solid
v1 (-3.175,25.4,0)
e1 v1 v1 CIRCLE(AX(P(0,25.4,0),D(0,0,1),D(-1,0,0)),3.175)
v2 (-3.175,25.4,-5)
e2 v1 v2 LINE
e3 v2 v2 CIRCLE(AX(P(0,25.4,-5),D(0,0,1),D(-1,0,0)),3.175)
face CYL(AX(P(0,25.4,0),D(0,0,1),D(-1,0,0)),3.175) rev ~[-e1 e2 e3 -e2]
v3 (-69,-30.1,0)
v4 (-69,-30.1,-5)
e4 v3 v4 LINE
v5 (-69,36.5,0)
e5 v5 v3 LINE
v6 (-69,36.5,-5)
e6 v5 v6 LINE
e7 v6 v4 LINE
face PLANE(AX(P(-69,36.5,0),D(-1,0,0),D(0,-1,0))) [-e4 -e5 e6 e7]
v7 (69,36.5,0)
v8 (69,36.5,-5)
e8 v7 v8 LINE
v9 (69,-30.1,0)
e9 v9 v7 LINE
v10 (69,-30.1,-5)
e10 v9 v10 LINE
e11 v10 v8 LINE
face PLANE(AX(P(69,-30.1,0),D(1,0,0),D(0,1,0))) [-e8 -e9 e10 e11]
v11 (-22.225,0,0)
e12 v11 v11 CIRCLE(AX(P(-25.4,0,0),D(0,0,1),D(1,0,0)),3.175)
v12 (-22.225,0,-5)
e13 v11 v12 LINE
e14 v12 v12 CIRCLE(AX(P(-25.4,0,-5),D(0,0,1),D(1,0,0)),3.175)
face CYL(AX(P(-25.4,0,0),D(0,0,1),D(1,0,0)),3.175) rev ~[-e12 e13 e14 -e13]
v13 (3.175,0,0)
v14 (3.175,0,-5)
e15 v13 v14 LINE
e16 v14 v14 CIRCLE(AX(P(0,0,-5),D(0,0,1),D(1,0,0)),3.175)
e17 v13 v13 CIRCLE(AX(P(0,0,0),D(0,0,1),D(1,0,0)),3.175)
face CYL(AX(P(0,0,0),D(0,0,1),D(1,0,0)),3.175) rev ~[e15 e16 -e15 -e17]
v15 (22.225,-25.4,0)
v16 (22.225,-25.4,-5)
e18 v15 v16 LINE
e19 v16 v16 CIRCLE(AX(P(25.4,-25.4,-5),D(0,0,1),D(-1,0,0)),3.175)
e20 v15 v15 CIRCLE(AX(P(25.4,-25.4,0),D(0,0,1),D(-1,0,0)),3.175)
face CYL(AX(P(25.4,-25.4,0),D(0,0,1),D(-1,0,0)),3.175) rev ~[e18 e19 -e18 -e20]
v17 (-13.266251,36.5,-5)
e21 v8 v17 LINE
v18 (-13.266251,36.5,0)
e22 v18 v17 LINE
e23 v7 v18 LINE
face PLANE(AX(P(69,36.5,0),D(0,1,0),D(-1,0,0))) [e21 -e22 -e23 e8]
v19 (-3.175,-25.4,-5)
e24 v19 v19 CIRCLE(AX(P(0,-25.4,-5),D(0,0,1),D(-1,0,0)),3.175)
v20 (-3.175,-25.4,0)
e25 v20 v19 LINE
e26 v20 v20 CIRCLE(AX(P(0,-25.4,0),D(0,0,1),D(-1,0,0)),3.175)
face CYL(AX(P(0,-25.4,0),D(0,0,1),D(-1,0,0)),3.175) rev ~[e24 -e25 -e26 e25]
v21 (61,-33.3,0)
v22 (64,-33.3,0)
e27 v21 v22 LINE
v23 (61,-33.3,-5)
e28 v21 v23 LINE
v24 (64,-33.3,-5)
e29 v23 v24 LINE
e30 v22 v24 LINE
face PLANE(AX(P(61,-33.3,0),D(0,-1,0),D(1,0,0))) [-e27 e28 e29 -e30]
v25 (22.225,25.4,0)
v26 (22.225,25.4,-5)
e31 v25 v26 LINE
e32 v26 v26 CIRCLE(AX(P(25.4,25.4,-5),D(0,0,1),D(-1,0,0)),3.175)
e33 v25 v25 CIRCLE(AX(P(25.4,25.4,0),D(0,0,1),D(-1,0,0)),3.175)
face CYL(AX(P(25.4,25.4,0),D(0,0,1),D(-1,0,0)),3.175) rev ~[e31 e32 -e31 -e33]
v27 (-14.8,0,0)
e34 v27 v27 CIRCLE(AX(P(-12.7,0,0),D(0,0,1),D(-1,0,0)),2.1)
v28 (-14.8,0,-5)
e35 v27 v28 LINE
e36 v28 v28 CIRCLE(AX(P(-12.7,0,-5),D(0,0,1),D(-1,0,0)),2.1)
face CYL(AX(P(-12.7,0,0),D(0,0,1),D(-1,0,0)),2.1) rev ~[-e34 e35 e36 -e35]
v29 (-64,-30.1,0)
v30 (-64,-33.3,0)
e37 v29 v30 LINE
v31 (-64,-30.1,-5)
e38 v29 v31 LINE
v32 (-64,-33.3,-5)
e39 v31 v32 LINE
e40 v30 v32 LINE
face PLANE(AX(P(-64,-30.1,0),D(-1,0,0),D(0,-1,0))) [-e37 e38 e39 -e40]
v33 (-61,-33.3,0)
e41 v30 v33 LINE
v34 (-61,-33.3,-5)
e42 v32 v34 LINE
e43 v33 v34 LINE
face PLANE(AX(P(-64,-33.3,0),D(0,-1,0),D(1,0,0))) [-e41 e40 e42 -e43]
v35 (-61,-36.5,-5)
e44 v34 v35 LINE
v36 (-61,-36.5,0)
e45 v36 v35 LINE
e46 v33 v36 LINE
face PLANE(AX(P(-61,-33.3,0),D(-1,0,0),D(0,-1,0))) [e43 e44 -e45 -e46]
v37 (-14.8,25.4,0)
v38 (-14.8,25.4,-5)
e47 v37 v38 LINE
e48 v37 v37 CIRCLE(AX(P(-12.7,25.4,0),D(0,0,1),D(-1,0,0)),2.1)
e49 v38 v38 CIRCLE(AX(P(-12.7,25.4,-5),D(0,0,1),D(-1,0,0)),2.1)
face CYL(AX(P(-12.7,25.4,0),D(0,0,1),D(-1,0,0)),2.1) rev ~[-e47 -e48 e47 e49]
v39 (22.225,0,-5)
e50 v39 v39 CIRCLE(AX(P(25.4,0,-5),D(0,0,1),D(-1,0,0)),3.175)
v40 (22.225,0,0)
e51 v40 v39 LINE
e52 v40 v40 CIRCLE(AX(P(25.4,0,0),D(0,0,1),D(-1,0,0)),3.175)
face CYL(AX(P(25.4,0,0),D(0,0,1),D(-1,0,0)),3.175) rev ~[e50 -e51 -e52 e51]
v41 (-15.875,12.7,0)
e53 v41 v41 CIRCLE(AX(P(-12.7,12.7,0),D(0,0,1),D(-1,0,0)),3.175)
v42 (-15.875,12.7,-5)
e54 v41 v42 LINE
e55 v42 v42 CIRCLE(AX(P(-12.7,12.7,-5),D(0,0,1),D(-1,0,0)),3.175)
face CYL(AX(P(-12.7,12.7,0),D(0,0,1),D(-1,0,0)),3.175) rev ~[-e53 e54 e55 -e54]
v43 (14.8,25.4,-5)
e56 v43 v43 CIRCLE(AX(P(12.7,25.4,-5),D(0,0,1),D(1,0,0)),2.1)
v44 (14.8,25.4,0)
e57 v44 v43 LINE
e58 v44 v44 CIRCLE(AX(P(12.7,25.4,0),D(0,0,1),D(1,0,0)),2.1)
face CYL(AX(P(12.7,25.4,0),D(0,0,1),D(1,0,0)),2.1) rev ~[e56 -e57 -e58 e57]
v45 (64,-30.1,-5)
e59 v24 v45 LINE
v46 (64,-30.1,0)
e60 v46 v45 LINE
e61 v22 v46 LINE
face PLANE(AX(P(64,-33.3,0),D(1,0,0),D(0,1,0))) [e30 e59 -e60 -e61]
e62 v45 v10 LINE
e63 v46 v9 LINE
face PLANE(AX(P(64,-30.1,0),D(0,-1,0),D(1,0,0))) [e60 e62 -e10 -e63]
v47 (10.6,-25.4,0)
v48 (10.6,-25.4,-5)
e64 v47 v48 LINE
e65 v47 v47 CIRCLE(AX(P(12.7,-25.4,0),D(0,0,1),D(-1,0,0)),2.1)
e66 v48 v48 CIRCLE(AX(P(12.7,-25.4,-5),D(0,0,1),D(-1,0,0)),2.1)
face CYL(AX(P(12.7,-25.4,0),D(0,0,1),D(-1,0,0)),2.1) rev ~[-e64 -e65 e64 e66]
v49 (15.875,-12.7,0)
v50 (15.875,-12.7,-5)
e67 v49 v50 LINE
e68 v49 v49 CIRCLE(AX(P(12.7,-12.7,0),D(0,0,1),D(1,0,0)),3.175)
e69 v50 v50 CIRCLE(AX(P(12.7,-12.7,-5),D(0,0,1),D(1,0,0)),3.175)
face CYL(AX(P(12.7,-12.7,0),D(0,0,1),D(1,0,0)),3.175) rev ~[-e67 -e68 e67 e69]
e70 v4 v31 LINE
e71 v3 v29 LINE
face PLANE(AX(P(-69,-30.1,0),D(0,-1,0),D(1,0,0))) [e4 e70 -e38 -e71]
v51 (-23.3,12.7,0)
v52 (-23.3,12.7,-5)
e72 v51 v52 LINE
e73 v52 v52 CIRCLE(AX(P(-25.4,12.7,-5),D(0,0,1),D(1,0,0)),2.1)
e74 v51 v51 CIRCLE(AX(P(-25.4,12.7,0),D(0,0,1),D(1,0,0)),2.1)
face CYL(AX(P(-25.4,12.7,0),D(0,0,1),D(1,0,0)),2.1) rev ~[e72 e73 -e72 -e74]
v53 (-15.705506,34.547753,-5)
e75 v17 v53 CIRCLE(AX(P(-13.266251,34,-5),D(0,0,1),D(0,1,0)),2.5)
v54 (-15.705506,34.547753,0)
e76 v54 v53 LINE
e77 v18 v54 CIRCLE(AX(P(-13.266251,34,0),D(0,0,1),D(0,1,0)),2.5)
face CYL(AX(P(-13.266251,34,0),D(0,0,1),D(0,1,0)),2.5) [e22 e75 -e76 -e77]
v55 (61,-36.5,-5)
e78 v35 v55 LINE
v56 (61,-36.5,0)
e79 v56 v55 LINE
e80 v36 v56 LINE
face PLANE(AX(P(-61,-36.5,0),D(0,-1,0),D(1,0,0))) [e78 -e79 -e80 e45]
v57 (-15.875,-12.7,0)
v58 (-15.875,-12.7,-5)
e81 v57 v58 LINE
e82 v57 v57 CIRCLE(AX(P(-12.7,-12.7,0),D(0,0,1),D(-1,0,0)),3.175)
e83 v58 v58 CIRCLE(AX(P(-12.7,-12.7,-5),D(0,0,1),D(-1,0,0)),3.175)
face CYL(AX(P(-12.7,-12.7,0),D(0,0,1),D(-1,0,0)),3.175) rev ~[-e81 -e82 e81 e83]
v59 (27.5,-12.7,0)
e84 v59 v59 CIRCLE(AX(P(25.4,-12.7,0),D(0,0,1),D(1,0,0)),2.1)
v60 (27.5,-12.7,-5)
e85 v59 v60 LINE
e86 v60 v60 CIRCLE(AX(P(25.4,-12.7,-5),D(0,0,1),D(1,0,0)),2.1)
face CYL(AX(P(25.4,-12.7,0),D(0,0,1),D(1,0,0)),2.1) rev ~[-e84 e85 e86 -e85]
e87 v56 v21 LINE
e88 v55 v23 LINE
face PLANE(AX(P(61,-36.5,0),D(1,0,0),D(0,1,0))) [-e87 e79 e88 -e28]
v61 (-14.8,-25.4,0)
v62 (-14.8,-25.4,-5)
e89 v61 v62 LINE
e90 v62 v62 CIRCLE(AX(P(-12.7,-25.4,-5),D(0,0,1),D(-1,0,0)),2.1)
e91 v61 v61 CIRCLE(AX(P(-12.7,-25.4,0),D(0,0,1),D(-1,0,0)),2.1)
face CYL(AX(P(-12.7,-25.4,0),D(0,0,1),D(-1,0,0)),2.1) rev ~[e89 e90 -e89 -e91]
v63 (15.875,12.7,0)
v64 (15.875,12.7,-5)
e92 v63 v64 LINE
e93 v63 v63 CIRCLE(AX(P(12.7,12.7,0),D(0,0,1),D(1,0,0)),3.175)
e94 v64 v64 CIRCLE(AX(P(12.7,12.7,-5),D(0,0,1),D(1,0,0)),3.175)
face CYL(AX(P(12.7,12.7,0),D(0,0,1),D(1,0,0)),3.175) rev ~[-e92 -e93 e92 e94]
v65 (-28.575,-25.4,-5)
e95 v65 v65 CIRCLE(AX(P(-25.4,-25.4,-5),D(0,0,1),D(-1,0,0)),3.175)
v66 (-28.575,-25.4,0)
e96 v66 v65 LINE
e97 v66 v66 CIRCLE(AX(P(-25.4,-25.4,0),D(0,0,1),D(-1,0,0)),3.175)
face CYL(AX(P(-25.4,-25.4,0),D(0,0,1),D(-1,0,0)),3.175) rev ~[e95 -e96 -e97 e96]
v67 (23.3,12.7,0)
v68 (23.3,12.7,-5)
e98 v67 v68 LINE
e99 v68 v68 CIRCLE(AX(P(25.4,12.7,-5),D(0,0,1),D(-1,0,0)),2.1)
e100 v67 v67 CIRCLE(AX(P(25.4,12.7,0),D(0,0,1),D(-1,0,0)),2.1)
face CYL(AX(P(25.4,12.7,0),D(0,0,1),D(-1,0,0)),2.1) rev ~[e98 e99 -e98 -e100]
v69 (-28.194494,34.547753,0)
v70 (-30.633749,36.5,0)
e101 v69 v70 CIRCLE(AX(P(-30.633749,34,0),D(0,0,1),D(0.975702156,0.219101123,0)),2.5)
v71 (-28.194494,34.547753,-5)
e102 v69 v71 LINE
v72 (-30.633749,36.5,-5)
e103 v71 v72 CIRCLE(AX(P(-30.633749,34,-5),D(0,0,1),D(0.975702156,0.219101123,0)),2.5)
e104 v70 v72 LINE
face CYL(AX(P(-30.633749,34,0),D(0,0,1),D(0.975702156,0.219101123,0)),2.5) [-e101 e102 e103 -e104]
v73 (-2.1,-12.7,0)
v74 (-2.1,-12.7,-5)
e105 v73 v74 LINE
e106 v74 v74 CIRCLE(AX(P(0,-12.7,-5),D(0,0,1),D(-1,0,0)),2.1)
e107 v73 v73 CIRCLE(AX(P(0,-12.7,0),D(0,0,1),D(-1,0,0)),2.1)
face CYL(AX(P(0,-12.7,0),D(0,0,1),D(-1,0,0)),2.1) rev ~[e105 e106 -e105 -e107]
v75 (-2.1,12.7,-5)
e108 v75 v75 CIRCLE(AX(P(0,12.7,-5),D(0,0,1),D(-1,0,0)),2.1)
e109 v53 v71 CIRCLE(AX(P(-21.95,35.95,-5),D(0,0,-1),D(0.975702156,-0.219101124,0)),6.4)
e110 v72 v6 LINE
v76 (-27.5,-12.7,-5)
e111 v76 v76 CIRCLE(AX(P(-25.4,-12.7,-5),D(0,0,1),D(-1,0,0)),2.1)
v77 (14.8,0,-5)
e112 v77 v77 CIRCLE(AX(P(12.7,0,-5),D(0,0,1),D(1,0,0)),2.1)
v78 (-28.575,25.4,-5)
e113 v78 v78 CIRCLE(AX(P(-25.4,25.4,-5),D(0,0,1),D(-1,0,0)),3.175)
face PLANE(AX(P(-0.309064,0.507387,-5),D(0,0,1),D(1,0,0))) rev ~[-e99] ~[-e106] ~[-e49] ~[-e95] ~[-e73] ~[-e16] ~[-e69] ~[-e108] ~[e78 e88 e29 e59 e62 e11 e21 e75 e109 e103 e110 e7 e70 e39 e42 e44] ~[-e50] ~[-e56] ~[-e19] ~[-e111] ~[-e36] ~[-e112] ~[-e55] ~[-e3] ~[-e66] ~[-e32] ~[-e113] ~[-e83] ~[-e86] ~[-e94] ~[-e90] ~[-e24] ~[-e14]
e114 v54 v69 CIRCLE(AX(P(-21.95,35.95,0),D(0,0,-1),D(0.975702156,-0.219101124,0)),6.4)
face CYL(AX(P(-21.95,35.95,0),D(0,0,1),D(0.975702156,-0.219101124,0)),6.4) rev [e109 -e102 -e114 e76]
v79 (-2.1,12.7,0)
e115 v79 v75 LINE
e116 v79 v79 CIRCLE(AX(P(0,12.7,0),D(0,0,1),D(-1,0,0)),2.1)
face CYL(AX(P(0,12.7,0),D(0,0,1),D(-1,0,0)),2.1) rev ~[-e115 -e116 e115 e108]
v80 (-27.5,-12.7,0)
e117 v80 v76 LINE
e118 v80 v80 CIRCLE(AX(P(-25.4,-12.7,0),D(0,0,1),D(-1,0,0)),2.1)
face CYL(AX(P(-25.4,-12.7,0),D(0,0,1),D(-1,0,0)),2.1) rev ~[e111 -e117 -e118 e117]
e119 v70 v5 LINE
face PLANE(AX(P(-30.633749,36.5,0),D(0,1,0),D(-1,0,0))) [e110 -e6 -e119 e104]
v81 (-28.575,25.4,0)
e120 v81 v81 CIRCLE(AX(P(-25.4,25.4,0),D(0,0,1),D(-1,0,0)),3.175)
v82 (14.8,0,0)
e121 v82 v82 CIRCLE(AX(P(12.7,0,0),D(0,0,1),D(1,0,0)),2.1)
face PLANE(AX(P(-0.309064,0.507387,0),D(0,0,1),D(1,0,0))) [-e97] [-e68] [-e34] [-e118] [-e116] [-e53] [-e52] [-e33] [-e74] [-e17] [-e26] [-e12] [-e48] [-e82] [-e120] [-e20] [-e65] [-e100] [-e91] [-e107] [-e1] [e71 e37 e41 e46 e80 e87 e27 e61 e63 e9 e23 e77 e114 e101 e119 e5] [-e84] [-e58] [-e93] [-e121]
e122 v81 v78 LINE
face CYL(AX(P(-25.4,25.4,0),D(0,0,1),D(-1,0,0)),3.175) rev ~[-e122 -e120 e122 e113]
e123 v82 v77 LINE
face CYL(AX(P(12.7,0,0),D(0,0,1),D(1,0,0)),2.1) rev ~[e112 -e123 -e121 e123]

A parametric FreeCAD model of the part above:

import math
import FreeCAD as App
import Part
import Sketcher
from FreeCAD import Vector
Q = App.Units.Quantity

doc = App.newDocument("Part")
body = doc.addObject("PartDesign::Body", "Body")

sketch1 = doc.addObject("Sketcher::SketchObject", "Sketch")
body.addObject(sketch1)
sketch1.AttachmentSupport = (doc.XY_Plane, [""])
sketch1.MapMode = "FlatFace"
sketch1.addGeometry([
    Part.LineSegment(Vector(-30.633749, 36.5, 0), Vector(-69, 36.5, 0)),
    Part.LineSegment(Vector(-69, 36.5, 0), Vector(-69, -30.1, 0)),
    Part.LineSegment(Vector(-69, -30.1, 0), Vector(-64, -30.1, 0)),
    Part.LineSegment(Vector(-64, -30.1, 0), Vector(-64, -33.3, 0)),
    Part.LineSegment(Vector(-64, -33.3, 0), Vector(-61, -33.3, 0)),
    Part.LineSegment(Vector(-61, -33.3, 0), Vector(-61, -36.5, 0)),
    Part.LineSegment(Vector(-61, -36.5, 0), Vector(61, -36.5, 0)),
    Part.LineSegment(Vector(61, -36.5, 0), Vector(61, -33.3, 0)),
    Part.LineSegment(Vector(61, -33.3, 0), Vector(64, -33.3, 0)),
    Part.LineSegment(Vector(64, -33.3, 0), Vector(64, -30.1, 0)),
    Part.LineSegment(Vector(64, -30.1, 0), Vector(69, -30.1, 0)),
    Part.LineSegment(Vector(69, -30.1, 0), Vector(69, 36.5, 0)),
    Part.LineSegment(Vector(69, 36.5, 0), Vector(-13.266251, 36.5, 0)),
    Part.ArcOfCircle(Part.Circle(Vector(-13.266251, 34, 0), Vector(0, 0, 1), 2.5), math.radians(90), math.radians(167.343757)),
    Part.ArcOfCircle(Part.Circle(Vector(-21.95, 35.95, 0), Vector(0, 0, 1), 6.4), math.radians(-167.343757), math.radians(-12.656243)),
    Part.ArcOfCircle(Part.Circle(Vector(-30.633749, 34, 0), Vector(0, 0, 1), 2.5), math.radians(12.656243), math.radians(90)),
    Part.Circle(Vector(-25.4, -25.4, 0), Vector(0, 0, 1), 3.175),
    Part.Circle(Vector(-12.7, -25.4, 0), Vector(0, 0, 1), 2.1),
    Part.Circle(Vector(-25.4, -12.7, 0), Vector(0, 0, 1), 2.1),
    Part.Circle(Vector(-12.7, -12.7, 0), Vector(0, 0, 1), 3.175),
    Part.Circle(Vector(0, -25.4, 0), Vector(0, 0, 1), 3.175),
    Part.Circle(Vector(12.7, -25.4, 0), Vector(0, 0, 1), 2.1),
    Part.Circle(Vector(25.4, -25.4, 0), Vector(0, 0, 1), 3.175),
    Part.Circle(Vector(0, -12.7, 0), Vector(0, 0, 1), 2.1),
    Part.Circle(Vector(12.7, -12.7, 0), Vector(0, 0, 1), 3.175),
    Part.Circle(Vector(12.7, 0, 0), Vector(0, 0, 1), 2.1),
    Part.Circle(Vector(25.4, -12.7, 0), Vector(0, 0, 1), 2.1),
    Part.Circle(Vector(25.4, 0, 0), Vector(0, 0, 1), 3.175),
    Part.Circle(Vector(-25.4, 0, 0), Vector(0, 0, 1), 3.175),
    Part.Circle(Vector(-25.4, 12.7, 0), Vector(0, 0, 1), 2.1),
    Part.Circle(Vector(-12.7, 0, 0), Vector(0, 0, 1), 2.1),
    Part.Circle(Vector(-12.7, 12.7, 0), Vector(0, 0, 1), 3.175),
    Part.Circle(Vector(-25.4, 25.4, 0), Vector(0, 0, 1), 3.175),
    Part.Circle(Vector(-12.7, 25.4, 0), Vector(0, 0, 1), 2.1),
    Part.Circle(Vector(0, 0, 0), Vector(0, 0, 1), 3.175),
    Part.Circle(Vector(0, 12.7, 0), Vector(0, 0, 1), 2.1),
    Part.Circle(Vector(12.7, 12.7, 0), Vector(0, 0, 1), 3.175),
    Part.Circle(Vector(25.4, 12.7, 0), Vector(0, 0, 1), 2.1),
    Part.Circle(Vector(0, 25.4, 0), Vector(0, 0, 1), 3.175),
    Part.Circle(Vector(12.7, 25.4, 0), Vector(0, 0, 1), 2.1),
    Part.Circle(Vector(25.4, 25.4, 0), Vector(0, 0, 1), 3.175),
], False)
sketch1.addConstraint([
    Sketcher.Constraint("Coincident", 0, 2, 1, 1),
    Sketcher.Constraint("Coincident", 1, 2, 2, 1),
    Sketcher.Constraint("Coincident", 2, 2, 3, 1),
    Sketcher.Constraint("Coincident", 3, 2, 4, 1),
    Sketcher.Constraint("Coincident", 4, 2, 5, 1),
    Sketcher.Constraint("Coincident", 5, 2, 6, 1),
    Sketcher.Constraint("Coincident", 6, 2, 7, 1),
    Sketcher.Constraint("Coincident", 7, 2, 8, 1),
    Sketcher.Constraint("Coincident", 8, 2, 9, 1),
    Sketcher.Constraint("Coincident", 9, 2, 10, 1),
    Sketcher.Constraint("Coincident", 10, 2, 11, 1),
    Sketcher.Constraint("Coincident", 11, 2, 12, 1),
    Sketcher.Constraint("Tangent", 12, 2, 13, 1),
    Sketcher.Constraint("Tangent", 13, 2, 14, 2),
    Sketcher.Constraint("Tangent", 14, 1, 15, 1),
    Sketcher.Constraint("Tangent", 15, 2, 0, 1),
    Sketcher.Constraint("Horizontal", 0),
    Sketcher.Constraint("Vertical", 1),
    Sketcher.Constraint("Horizontal", 2),
    Sketcher.Constraint("Vertical", 3),
    Sketcher.Constraint("Horizontal", 4),
    Sketcher.Constraint("Vertical", 5),
    Sketcher.Constraint("Horizontal", 6),
    Sketcher.Constraint("Vertical", 7),
    Sketcher.Constraint("Horizontal", 8),
    Sketcher.Constraint("Vertical", 9),
    Sketcher.Constraint("Horizontal", 10),
    Sketcher.Constraint("Vertical", 11),
    Sketcher.Constraint("Horizontal", 12),
    Sketcher.Constraint("Coincident", 34, 3, -1, 1),
    Sketcher.Constraint("Equal", 13, 15),
    Sketcher.Constraint("Equal", 17, 18),
    Sketcher.Constraint("Equal", 16, 19),
    Sketcher.Constraint("Equal", 19, 20),
    Sketcher.Constraint("Equal", 18, 21),
    Sketcher.Constraint("Equal", 20, 22),
    Sketcher.Constraint("Equal", 21, 23),
    Sketcher.Constraint("Equal", 22, 24),
    Sketcher.Constraint("Equal", 23, 25),
    Sketcher.Constraint("Equal", 25, 26),
    Sketcher.Constraint("Equal", 24, 27),
    Sketcher.Constraint("Equal", 27, 28),
    Sketcher.Constraint("Equal", 26, 29),
    Sketcher.Constraint("Equal", 29, 30),
    Sketcher.Constraint("Equal", 28, 31),
    Sketcher.Constraint("Equal", 31, 32),
    Sketcher.Constraint("Equal", 30, 33),
    Sketcher.Constraint("Equal", 32, 34),
    Sketcher.Constraint("Equal", 33, 35),
    Sketcher.Constraint("Equal", 34, 36),
    Sketcher.Constraint("Equal", 35, 37),
    Sketcher.Constraint("Equal", 36, 38),
    Sketcher.Constraint("Equal", 37, 39),
    Sketcher.Constraint("Equal", 38, 40),
    Sketcher.Constraint("Symmetric", 27, 3, 28, 3, -1, 1),
    Sketcher.Constraint("Symmetric", 26, 3, 29, 3, -1, 1),
    Sketcher.Constraint("Symmetric", 25, 3, 30, 3, -1, 1),
    Sketcher.Constraint("Symmetric", 24, 3, 31, 3, -1, 1),
    Sketcher.Constraint("Symmetric", 22, 3, 32, 3, -1, 1),
    Sketcher.Constraint("Symmetric", 21, 3, 33, 3, -1, 1),
    Sketcher.Constraint("Symmetric", 23, 3, 35, 3, -1, 1),
    Sketcher.Constraint("Symmetric", 19, 3, 36, 3, -1, 1),
    Sketcher.Constraint("Symmetric", 18, 3, 37, 3, -1, 1),
    Sketcher.Constraint("Symmetric", 20, 3, 38, 3, -1, 1),
    Sketcher.Constraint("Symmetric", 17, 3, 39, 3, -1, 1),
    Sketcher.Constraint("Symmetric", 16, 3, 40, 3, -1, 1),
    Sketcher.Constraint("Symmetric", 17, 3, 21, 3, -2),
    Sketcher.Constraint("Symmetric", 16, 3, 22, 3, -2),
    Sketcher.Constraint("Symmetric", 19, 3, 24, 3, -2),
    Sketcher.Constraint("Symmetric", 18, 3, 26, 3, -2),
    Sketcher.Constraint("Symmetric", 4, 2, 7, 2, -2),
    Sketcher.Constraint("Symmetric", 2, 2, 9, 2, -2),
    Sketcher.Constraint("Symmetric", 0, 2, 11, 2, -2),
    Sketcher.Constraint("PointOnObject", 20, 3, -2),
    Sketcher.Constraint("PointOnObject", 23, 3, -2),
    Sketcher.Constraint("PointOnObject", 25, 3, -1),
    Sketcher.Constraint("PointOnObject", 27, 3, -1),
    Sketcher.Constraint("Horizontal", 16, 3, 17, 3),
    Sketcher.Constraint("Horizontal", 18, 3, 19, 3),
    Sketcher.Constraint("Horizontal", 17, 3, 20, 3),
    Sketcher.Constraint("Horizontal", 19, 3, 23, 3),
    Sketcher.Constraint("Vertical", 16, 3, 18, 3),
    Sketcher.Constraint("Vertical", 17, 3, 19, 3),
    Sketcher.Constraint("Vertical", 24, 3, 25, 3),
    Sketcher.Constraint("Vertical", 26, 3, 27, 3),
    Sketcher.Constraint("Equal", 3, 5),
    Sketcher.Constraint("Diameter", 17, Q("4.2 mm")),
    Sketcher.Constraint("Radius", 13, Q("2.5 mm")),
    Sketcher.Constraint("Radius", 14, Q("6.4 mm")),
    Sketcher.Constraint("Diameter", 16, Q("6.35 mm")),
    Sketcher.Constraint("DistanceX", 2, 1, 2, 2, Q("5 mm")),
    Sketcher.Constraint("DistanceX", 4, 1, 4, 2, Q("3 mm")),
    Sketcher.Constraint("DistanceX", 6, 1, 6, 2, Q("122 mm")),
    Sketcher.Constraint("DistanceY", 1, 2, 1, 1, Q("66.6 mm")),
    Sketcher.Constraint("DistanceY", 3, 2, 3, 1, Q("3.2 mm")),
    Sketcher.Constraint("DistanceY", -1, 1, 13, 3, Q("34 mm")),
    Sketcher.Constraint("DistanceX", 16, 3, -1, 1, Q("25.4 mm")),
    Sketcher.Constraint("DistanceY", 16, 3, -1, 1, Q("25.4 mm")),
    Sketcher.Constraint("DistanceX", 17, 3, -1, 1, Q("12.7 mm")),
    Sketcher.Constraint("DistanceY", 18, 3, -1, 1, Q("12.7 mm")),
    Sketcher.Constraint("DistanceX", 14, 3, -1, 1, Q("21.95 mm")),
    Sketcher.Constraint("DistanceY", -1, 1, 14, 3, Q("35.95 mm")),
])
pad1 = doc.addObject("PartDesign::Pad", "Pad")
body.addObject(pad1)
pad1.Profile = sketch1
pad1.Length = 5
pad1.Reversed = True

doc.recompute()
